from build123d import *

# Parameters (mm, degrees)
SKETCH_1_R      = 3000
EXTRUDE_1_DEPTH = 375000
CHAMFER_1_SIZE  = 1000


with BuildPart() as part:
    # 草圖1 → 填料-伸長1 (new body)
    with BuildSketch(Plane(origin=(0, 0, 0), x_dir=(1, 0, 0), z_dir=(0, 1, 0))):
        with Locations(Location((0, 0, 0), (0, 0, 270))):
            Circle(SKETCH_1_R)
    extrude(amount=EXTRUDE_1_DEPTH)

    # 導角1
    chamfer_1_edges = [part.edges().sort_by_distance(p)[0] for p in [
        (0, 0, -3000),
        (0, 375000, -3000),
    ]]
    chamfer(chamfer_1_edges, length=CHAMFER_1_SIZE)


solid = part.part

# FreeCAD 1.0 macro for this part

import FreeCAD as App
import Part
import Sketcher
from FreeCAD import Vector


def edges_at(feature, points):
    """Names of the edges that pass closest to the given points."""
    edges = feature.Shape.Edges
    near = lambda p: min(range(len(edges)), key=lambda i: edges[i].distToShape(Part.Vertex(*p))[0])
    return sorted({f"Edge{near(p) + 1}" for p in points})

doc = App.newDocument("Part")
body = doc.addObject("PartDesign::Body", "Body")

sketch1 = body.newObject("Sketcher::SketchObject", "Sketch")
sketch1.AttachmentSupport = (doc.getObject("XZ_Plane"), [""])
sketch1.MapMode = "FlatFace"
sketch1.addGeometry(Part.Circle(Vector(0, 0, 0), Vector(0, 0, 1), 3000), False)
sketch1.addConstraint([
    Sketcher.Constraint("Coincident", 0, 3, -1, 1),
    Sketcher.Constraint("Diameter", 0, 6000.0),
])
pad1 = body.newObject("PartDesign::Pad", "Pad")
pad1.Profile = sketch1
pad1.Length = 375000
pad1.Reversed = True
doc.recompute()

chamfer = body.newObject("PartDesign::Chamfer", "Chamfer")
chamfer.Base = (pad1, edges_at(pad1, [(0, 0, -3000), (0, 375000, -3000)]))
chamfer.Size = 1000

doc.recompute()
